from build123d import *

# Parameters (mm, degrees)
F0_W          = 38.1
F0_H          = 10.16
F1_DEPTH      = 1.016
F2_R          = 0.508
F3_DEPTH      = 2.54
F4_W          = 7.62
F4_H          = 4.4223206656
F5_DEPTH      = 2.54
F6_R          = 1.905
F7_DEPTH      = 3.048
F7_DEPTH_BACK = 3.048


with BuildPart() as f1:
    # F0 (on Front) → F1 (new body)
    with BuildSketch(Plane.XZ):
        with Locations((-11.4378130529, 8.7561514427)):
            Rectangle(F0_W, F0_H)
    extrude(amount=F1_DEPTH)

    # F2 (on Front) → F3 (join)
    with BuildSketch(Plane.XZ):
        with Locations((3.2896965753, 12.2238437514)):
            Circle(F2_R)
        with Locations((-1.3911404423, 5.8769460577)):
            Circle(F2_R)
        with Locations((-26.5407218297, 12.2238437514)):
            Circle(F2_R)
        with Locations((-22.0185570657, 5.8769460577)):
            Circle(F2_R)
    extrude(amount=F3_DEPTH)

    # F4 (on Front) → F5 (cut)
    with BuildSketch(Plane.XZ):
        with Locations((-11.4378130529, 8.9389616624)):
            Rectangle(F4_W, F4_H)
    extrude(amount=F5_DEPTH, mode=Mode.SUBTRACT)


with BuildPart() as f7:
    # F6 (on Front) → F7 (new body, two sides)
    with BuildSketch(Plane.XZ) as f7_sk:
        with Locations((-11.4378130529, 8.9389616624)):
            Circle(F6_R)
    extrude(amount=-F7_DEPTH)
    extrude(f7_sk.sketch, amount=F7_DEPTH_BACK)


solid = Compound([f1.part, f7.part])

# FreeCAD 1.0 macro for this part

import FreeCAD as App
import Part
import Sketcher
from FreeCAD import Vector
Q = App.Units.Quantity


def add_polygon(sketch, points):
    """Adds a closed chain of lines whose ends are joined by coincident constraints."""
    first, n = sketch.GeometryCount, len(points)
    for a, b in zip(points, points[1:] + points[:1]):
        sketch.addGeometry(Part.LineSegment(App.Vector(*a, 0), App.Vector(*b, 0)), False)
    for i in range(n):
        sketch.addConstraint(Sketcher.Constraint("Coincident", first + i, 2, first + (i + 1) % n, 1))

doc = App.newDocument("Part")
body = doc.addObject("PartDesign::Body", "Body")

# Sketch on XZ plane
sketch1 = doc.addObject("Sketcher::SketchObject", "Sketch")
body.addObject(sketch1)
sketch1.AttachmentSupport = (doc.XZ_Plane, [""])
sketch1.MapMode = "FlatFace"
add_polygon(sketch1, [(-30, 14), (-30, 4), (8, 4), (8, 14)])  # lines 0-3
sketch1.addConstraint(Sketcher.Constraint("Vertical", 0))
sketch1.addConstraint(Sketcher.Constraint("Horizontal", 1))
sketch1.addConstraint(Sketcher.Constraint("Vertical", 2))
sketch1.addConstraint(Sketcher.Constraint("Horizontal", 3))
sketch1.addConstraint(Sketcher.Constraint("DistanceX", 1, 1, 1, 2, Q("1.5 in")))
sketch1.addConstraint(Sketcher.Constraint("DistanceY", 0, 2, 0, 1, Q("0.4 in")))
sketch1.addConstraint(Sketcher.Constraint("DistanceY", -1, 1, 0, 2, Q("3.676151 mm")))
sketch1.addConstraint(Sketcher.Constraint("DistanceX", 0, 2, -1, 1, Q("30.487813 mm")))
pad1 = doc.addObject("PartDesign::Pad", "Pad")
body.addObject(pad1)
pad1.Profile = sketch1
pad1.Length = Q("0.04 in")

# Sketch on XZ plane
sketch2 = doc.addObject("Sketcher::SketchObject", "Sketch001")
body.addObject(sketch2)
sketch2.AttachmentSupport = (doc.XZ_Plane, [""])
sketch2.MapMode = "FlatFace"
sketch2.addGeometry(Part.Circle(Vector(3.3, 12.2, 0), Vector(0, 0, 1), 0.5), False)
sketch2.addGeometry(Part.Circle(Vector(-1.4, 5.9, 0), Vector(0, 0, 1), 0.5), False)
sketch2.addGeometry(Part.Circle(Vector(-26.5, 12.2, 0), Vector(0, 0, 1), 0.5), False)
sketch2.addGeometry(Part.Circle(Vector(-22, 5.9, 0), Vector(0, 0, 1), 0.5), False)
sketch2.addConstraint(Sketcher.Constraint("Equal", 0, 1))
sketch2.addConstraint(Sketcher.Constraint("Equal", 1, 2))
sketch2.addConstraint(Sketcher.Constraint("Equal", 2, 3))
sketch2.addConstraint(Sketcher.Constraint("Horizontal", 0, 3, 2, 3))
sketch2.addConstraint(Sketcher.Constraint("Horizontal", 1, 3, 3, 3))
sketch2.addConstraint(Sketcher.Constraint("Diameter", 0, Q("0.04 in")))
sketch2.addConstraint(Sketcher.Constraint("DistanceX", 1, 3, -1, 1, Q("1.39114 mm")))
sketch2.addConstraint(Sketcher.Constraint("DistanceX", 2, 3, -1, 1, Q("26.540722 mm")))
sketch2.addConstraint(Sketcher.Constraint("DistanceX", 2, 3, 0, 3, Q("29.830418 mm")))
sketch2.addConstraint(Sketcher.Constraint("DistanceY", -1, 1, 0, 3, Q("12.223844 mm")))
sketch2.addConstraint(Sketcher.Constraint("DistanceY", -1, 1, 1, 3, Q("5.876946 mm")))
sketch2.addConstraint(Sketcher.Constraint("DistanceX", 3, 3, -1, 1, Q("22.018557 mm")))
pad2 = doc.addObject("PartDesign::Pad", "Pad001")
body.addObject(pad2)
pad2.Profile = sketch2
pad2.Length = Q("0.1 in")

# Sketch on XZ plane
sketch3 = doc.addObject("Sketcher::SketchObject", "Sketch002")
body.addObject(sketch3)
sketch3.AttachmentSupport = (doc.XZ_Plane, [""])
sketch3.MapMode = "FlatFace"
add_polygon(sketch3, [(-15.2, 11.2), (-15.2, 6.7), (-7.6, 6.7), (-7.6, 11.2)])  # lines 0-3
sketch3.addConstraint(Sketcher.Constraint("Vertical", 0))
sketch3.addConstraint(Sketcher.Constraint("Horizontal", 1))
sketch3.addConstraint(Sketcher.Constraint("Vertical", 2))
sketch3.addConstraint(Sketcher.Constraint("Horizontal", 3))
sketch3.addConstraint(Sketcher.Constraint("DistanceX", 1, 1, 1, 2, Q("0.3 in")))
sketch3.addConstraint(Sketcher.Constraint("DistanceY", 0, 2, 0, 1, Q("4.422321 mm")))
sketch3.addConstraint(Sketcher.Constraint("DistanceY", -1, 1, 0, 2, Q("6.727801 mm")))
sketch3.addConstraint(Sketcher.Constraint("DistanceX", 0, 2, -1, 1, Q("15.247813 mm")))
pocket1 = doc.addObject("PartDesign::Pocket", "Pocket")
body.addObject(pocket1)
pocket1.Profile = sketch3
pocket1.Length = Q("0.1 in")
pocket1.Reversed = True
body2 = doc.addObject("PartDesign::Body", "Body001")

# Sketch on XZ plane
sketch4 = doc.addObject("Sketcher::SketchObject", "Sketch003")
body2.addObject(sketch4)
sketch4.AttachmentSupport = (doc.getObject("XZ_Plane001"), [""])
sketch4.MapMode = "FlatFace"
sketch4.addGeometry(Part.Circle(Vector(-11.4, 8.9, 0), Vector(0, 0, 1), 1.9), False)
sketch4.addConstraint(Sketcher.Constraint("Diameter", 0, Q("0.15 in")))
sketch4.addConstraint(Sketcher.Constraint("DistanceY", -1, 1, 0, 3, Q("8.938962 mm")))
sketch4.addConstraint(Sketcher.Constraint("DistanceX", 0, 3, -1, 1, Q("11.437813 mm")))
pad3 = doc.addObject("PartDesign::Pad", "Pad002")
body2.addObject(pad3)
pad3.Profile = sketch4
pad3.Type = "TwoLengths"
pad3.Length = Q("0.12 in")
pad3.Length2 = Q("0.12 in")
pad3.Reversed = True

doc.recompute()
